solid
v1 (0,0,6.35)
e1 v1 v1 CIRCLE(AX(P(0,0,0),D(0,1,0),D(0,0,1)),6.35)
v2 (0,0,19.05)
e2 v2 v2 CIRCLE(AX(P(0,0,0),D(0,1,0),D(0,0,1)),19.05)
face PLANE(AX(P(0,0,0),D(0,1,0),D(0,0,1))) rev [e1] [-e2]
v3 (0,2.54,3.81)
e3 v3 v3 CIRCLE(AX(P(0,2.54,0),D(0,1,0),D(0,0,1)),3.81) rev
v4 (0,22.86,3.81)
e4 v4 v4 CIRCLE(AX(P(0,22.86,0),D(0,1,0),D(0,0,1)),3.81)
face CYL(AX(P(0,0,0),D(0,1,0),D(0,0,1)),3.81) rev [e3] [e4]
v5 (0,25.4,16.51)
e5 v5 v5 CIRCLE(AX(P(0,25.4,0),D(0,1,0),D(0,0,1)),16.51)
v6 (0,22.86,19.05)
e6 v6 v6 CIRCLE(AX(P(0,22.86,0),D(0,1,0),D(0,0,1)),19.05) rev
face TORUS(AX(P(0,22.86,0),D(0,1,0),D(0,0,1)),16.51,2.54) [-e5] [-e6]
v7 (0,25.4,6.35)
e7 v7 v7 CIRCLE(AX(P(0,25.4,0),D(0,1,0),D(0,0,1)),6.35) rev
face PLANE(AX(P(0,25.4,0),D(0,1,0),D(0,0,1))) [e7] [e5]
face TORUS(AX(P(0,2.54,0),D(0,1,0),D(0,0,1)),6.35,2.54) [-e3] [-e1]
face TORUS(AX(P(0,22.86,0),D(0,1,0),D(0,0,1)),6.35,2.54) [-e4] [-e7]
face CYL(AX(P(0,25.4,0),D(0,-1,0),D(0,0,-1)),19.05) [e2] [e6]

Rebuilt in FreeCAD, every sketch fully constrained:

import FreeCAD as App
import Part
import Sketcher

V = App.Vector
Q = App.Units.Quantity


def edges_at(feature, points):
    """Names of the edges that pass closest to the given points."""
    edges = feature.Shape.Edges
    near = lambda p: min(range(len(edges)), key=lambda i: edges[i].distToShape(Part.Vertex(*p))[0])
    return sorted({f"Edge{near(p) + 1}" for p in points})

doc = App.newDocument("Part")
body = doc.addObject("PartDesign::Body", "Body")

sketch1 = doc.addObject("Sketcher::SketchObject", "Sketch")
body.addObject(sketch1)
sketch1.AttachmentSupport = (doc.XZ_Plane, [""])
sketch1.MapMode = "FlatFace"
sketch1.addGeometry(Part.Circle(V(0, 0, 0), V(0, 0, 1), 19), False)
sketch1.addConstraint(Sketcher.Constraint("Coincident", 0, 3, -1, 1))
sketch1.addConstraint(Sketcher.Constraint("Diameter", 0, Q("1.5 in")))
pad1 = doc.addObject("PartDesign::Pad", "Pad")
body.addObject(pad1)
pad1.Profile = sketch1
pad1.Length = Q("1 in")
pad1.Reversed = True

sketch2 = doc.addObject("Sketcher::SketchObject", "Sketch001")
body.addObject(sketch2)
sketch2.AttachmentSupport = (doc.XZ_Plane, [""])
sketch2.MapMode = "FlatFace"
sketch2.AttachmentOffset = App.Placement(V(0, 0, -1 * 25.4), App.Rotation())
sketch2.addGeometry(Part.Circle(V(0, 0, 0), V(0, 0, 1), 3.8), False)
sketch2.addConstraint(Sketcher.Constraint("Coincident", 0, 3, -1, 1))
sketch2.addConstraint(Sketcher.Constraint("Diameter", 0, Q("0.3 in")))
pocket1 = doc.addObject("PartDesign::Pocket", "Pocket")
body.addObject(pocket1)
pocket1.Profile = sketch2
pocket1.Length = Q("1 in")
pocket1.Reversed = True
doc.recompute()

fillet = doc.addObject("PartDesign::Fillet", "Fillet")
body.addObject(fillet)
fillet.Base = (pocket1, edges_at(pocket1, [(0, 25.4, -19.05), (0, 0, -3.81), (0, 25.4, -3.81)]))
fillet.Radius = Q("0.1 in")

doc.recompute()
